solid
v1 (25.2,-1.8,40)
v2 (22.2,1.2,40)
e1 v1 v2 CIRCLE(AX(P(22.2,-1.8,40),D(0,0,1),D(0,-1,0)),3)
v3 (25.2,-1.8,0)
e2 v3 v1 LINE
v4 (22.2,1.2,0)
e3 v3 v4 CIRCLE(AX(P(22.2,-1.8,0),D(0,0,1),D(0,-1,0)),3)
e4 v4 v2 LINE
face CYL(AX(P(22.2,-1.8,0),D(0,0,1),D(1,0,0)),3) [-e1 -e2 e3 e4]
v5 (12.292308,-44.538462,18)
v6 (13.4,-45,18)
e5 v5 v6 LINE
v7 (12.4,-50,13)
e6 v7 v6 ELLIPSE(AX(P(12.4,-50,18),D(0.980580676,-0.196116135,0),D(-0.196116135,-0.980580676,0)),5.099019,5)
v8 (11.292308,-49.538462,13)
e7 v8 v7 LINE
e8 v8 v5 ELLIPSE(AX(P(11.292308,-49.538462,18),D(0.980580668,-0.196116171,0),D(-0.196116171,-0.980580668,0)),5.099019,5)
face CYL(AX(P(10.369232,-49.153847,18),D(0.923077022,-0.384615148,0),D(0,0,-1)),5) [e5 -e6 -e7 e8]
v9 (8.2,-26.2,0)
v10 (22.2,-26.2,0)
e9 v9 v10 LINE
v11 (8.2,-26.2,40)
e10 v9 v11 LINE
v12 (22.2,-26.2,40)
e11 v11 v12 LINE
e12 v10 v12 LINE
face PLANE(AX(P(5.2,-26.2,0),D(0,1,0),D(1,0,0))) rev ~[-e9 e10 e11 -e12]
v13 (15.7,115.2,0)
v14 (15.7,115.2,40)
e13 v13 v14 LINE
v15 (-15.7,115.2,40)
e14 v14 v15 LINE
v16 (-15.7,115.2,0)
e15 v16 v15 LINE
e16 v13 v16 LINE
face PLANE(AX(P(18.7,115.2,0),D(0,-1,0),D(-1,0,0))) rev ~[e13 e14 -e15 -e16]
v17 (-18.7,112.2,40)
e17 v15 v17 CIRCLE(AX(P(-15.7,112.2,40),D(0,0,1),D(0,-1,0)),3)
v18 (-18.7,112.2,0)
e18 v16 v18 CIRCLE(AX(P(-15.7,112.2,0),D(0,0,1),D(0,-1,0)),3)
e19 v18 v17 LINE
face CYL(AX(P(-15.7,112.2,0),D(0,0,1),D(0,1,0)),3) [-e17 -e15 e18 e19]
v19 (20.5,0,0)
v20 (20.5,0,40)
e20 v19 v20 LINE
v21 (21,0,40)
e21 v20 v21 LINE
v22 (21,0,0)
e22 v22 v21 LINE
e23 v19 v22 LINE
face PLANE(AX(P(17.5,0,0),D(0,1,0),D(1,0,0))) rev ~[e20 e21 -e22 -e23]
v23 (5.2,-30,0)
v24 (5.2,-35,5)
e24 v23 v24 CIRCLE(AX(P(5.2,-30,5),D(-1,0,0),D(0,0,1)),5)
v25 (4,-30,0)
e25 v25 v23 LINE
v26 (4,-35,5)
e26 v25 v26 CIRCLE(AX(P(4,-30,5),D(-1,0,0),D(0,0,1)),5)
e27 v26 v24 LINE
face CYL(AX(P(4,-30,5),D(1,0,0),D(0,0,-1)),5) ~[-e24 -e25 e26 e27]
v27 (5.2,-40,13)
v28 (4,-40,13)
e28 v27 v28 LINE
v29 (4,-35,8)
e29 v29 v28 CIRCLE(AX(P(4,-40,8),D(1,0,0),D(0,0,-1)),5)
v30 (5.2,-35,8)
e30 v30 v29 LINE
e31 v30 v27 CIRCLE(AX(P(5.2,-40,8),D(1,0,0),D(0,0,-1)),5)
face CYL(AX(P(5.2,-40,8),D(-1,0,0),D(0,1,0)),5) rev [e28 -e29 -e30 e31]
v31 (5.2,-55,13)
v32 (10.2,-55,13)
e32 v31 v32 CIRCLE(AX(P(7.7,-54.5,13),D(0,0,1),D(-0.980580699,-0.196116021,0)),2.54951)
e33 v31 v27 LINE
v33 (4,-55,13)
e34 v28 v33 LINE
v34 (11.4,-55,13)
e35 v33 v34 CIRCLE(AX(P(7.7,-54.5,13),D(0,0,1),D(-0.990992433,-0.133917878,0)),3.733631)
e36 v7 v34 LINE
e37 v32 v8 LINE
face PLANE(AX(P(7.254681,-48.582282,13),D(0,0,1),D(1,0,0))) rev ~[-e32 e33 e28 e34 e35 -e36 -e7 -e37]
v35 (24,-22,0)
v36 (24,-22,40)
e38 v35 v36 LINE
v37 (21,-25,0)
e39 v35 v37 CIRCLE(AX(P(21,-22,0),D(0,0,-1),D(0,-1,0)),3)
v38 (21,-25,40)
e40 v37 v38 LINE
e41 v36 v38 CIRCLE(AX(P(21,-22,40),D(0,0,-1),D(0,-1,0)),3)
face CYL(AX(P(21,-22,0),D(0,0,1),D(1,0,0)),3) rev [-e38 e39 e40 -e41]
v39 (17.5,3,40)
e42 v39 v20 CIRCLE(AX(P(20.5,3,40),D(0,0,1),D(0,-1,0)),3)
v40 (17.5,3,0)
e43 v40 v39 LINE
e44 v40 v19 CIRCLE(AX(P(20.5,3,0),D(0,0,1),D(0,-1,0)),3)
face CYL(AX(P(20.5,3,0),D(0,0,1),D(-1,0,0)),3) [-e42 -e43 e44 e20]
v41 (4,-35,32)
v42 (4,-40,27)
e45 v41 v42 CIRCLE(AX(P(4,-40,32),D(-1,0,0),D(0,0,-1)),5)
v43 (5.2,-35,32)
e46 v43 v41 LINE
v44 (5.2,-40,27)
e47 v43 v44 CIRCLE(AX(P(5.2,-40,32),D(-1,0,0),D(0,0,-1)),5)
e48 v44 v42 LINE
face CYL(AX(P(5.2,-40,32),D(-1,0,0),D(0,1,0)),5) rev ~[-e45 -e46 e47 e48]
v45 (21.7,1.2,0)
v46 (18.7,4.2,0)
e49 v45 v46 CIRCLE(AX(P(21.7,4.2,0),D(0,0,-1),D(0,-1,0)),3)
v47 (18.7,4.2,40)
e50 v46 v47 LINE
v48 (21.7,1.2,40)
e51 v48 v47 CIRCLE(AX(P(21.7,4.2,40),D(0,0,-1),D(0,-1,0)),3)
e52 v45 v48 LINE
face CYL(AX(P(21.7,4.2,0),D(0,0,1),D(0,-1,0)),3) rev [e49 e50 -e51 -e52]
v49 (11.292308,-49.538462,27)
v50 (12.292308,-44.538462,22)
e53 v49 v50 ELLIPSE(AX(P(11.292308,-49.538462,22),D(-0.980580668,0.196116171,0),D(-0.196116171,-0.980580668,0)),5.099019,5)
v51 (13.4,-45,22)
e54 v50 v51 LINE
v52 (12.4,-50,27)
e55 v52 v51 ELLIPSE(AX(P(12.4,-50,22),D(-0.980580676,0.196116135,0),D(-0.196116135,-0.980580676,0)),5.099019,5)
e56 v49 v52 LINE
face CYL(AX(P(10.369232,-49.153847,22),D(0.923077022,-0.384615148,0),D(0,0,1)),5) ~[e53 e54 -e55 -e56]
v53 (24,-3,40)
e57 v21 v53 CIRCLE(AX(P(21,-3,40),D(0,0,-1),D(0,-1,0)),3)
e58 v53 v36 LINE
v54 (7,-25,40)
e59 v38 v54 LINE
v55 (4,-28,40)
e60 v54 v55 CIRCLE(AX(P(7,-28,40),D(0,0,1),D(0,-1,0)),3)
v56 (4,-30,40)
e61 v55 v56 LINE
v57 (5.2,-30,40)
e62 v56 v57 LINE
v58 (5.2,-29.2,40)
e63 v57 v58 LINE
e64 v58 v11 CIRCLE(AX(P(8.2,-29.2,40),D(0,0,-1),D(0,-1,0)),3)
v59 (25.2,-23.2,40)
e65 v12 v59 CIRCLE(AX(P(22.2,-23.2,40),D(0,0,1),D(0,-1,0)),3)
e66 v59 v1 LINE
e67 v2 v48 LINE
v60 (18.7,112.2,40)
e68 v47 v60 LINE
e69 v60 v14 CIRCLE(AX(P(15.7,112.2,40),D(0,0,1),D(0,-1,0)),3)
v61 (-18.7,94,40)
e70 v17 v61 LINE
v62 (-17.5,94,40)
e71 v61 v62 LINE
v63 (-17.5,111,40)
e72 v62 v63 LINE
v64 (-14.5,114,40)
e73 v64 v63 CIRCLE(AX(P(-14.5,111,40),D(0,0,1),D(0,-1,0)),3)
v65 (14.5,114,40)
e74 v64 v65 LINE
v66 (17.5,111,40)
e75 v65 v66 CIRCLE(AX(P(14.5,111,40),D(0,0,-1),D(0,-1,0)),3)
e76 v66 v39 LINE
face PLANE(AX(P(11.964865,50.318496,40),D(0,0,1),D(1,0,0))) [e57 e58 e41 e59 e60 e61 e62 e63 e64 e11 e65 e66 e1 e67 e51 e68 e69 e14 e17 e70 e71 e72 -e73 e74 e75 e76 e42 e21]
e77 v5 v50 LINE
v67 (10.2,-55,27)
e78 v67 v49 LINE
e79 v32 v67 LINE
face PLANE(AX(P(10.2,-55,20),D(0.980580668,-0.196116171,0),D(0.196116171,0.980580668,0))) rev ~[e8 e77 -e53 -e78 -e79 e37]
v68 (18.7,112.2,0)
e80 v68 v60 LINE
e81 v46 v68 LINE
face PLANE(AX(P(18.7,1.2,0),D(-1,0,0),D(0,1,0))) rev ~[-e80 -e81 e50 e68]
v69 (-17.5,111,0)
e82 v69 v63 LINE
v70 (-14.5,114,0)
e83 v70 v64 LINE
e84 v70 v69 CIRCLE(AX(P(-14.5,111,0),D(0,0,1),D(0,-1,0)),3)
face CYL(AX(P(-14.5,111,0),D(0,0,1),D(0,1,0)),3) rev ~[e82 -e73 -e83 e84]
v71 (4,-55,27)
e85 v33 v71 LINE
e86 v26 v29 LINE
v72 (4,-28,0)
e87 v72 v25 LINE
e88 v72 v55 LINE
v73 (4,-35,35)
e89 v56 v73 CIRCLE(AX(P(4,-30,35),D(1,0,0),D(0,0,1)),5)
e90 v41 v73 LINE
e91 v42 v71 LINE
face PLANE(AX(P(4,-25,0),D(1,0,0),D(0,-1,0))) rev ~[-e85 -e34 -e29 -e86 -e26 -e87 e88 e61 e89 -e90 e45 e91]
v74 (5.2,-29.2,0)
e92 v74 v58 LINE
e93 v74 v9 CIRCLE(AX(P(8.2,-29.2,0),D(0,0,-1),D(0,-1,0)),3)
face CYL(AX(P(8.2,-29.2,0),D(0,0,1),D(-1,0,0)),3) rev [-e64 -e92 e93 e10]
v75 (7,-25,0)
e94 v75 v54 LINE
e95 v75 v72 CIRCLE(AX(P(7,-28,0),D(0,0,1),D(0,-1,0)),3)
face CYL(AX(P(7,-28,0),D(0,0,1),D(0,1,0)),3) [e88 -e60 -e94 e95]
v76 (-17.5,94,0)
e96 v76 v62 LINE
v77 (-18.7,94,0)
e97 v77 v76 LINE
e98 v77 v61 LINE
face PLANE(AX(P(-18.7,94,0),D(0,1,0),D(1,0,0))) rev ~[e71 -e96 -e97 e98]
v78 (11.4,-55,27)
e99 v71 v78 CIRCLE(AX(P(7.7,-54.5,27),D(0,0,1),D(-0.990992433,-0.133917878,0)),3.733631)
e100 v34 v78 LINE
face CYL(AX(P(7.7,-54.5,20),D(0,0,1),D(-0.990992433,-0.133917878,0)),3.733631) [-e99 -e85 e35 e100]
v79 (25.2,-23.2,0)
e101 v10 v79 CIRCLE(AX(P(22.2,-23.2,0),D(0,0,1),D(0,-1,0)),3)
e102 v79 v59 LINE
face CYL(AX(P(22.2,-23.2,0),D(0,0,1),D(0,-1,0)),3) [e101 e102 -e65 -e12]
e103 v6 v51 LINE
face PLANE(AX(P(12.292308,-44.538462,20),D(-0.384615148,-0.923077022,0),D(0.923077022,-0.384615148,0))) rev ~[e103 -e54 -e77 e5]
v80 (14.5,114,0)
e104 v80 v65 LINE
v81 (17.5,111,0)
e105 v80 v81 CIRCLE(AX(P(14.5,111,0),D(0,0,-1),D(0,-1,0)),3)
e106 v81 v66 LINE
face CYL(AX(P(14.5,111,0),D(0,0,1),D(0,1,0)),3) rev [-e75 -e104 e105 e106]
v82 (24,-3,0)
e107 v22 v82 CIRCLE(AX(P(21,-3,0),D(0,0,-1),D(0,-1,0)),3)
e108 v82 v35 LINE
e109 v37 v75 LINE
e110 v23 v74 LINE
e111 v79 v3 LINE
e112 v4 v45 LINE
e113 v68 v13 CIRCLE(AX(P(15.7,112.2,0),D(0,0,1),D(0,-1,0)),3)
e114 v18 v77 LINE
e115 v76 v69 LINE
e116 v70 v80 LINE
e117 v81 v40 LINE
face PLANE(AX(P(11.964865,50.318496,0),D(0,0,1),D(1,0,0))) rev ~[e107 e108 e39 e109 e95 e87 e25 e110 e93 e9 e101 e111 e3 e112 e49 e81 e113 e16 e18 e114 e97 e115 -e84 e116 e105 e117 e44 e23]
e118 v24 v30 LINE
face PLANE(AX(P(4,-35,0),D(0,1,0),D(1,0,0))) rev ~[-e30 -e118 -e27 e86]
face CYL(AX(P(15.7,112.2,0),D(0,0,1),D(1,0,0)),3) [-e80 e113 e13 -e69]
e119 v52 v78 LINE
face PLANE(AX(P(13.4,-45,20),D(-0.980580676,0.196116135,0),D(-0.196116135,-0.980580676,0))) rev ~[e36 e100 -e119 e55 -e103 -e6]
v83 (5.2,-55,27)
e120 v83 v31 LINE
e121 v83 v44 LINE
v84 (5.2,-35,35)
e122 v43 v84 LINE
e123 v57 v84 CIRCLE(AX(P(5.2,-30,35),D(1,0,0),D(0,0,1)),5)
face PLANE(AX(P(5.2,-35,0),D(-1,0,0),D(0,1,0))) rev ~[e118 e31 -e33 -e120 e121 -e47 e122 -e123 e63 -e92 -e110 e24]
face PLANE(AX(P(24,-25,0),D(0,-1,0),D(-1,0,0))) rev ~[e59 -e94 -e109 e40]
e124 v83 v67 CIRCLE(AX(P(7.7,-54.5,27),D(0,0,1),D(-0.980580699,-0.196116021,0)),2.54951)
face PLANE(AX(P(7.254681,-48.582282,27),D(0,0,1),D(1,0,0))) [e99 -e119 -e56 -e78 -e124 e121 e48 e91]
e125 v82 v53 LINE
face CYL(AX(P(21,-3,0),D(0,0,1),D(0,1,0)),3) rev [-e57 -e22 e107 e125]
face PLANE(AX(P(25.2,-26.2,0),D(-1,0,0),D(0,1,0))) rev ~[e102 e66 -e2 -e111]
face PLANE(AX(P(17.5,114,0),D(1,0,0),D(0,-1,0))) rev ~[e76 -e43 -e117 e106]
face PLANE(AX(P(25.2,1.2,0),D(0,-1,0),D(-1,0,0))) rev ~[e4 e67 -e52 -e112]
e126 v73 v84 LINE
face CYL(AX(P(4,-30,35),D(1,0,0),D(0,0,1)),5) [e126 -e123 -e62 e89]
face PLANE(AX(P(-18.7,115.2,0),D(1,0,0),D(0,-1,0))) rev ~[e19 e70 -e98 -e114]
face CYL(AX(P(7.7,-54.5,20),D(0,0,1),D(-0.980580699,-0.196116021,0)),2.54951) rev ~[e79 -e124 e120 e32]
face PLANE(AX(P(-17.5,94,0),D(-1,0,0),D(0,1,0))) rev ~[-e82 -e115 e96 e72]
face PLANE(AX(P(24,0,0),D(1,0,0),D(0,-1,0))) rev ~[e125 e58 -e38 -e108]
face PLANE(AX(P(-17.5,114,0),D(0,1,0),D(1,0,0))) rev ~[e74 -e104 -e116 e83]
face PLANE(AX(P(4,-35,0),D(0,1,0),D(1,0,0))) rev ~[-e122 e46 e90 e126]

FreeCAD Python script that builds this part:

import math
import FreeCAD as App
import Part
import Sketcher

V = App.Vector


def edges_at(feature, points):
    """Names of the edges that pass closest to the given points."""
    edges = feature.Shape.Edges
    near = lambda p: min(range(len(edges)), key=lambda i: edges[i].distToShape(Part.Vertex(*p))[0])
    return sorted({f"Edge{near(p) + 1}" for p in points})

doc = App.newDocument("Part")
params = doc.addObject("Spreadsheet::Sheet", "Params")
for row, (alias, value) in enumerate([
    ("sketch1_width", "35 mm"),
    ("sketch1_width2", "20 mm"),
    ("sketch1_height", "114 mm"),
    ("sketch1_height2", "25 mm"),
    ("sketch1_height3", "10 mm"),
    ("pad1_length", "40 mm"),
    ("sketch2_height", "20 mm"),
    ("sketch2_width", "1.2 mm"),
    ("sketch2_length", "1.2 mm"),
    ("pad2_length", "14 mm"),
    ("fillet_radius", "3 mm"),
    ("fillet2_radius", "5 mm"),
], start=1):
    params.set(f"A{row}", alias)
    params.set(f"B{row}", "=" + value)
    params.setAlias(f"B{row}", alias)

body = doc.addObject("PartDesign::Body", "Body")

sketch1 = doc.addObject("Sketcher::SketchObject", "Sketch")
body.addObject(sketch1)
sketch1.AttachmentSupport = (doc.XY_Plane, [""])
sketch1.MapMode = "FlatFace"
sketch1.addGeometry(Part.LineSegment(V(-17.5, 114, 0), V(17.5, 114, 0)), False)
sketch1.addGeometry(Part.LineSegment(V(17.5, 114, 0), V(17.5, 0, 0)), False)
sketch1.addGeometry(Part.LineSegment(V(17.5, 0, 0), V(24, 0, 0)), False)
sketch1.addGeometry(Part.LineSegment(V(24, 0, 0), V(24, -25, 0)), False)
sketch1.addGeometry(Part.LineSegment(V(24, -25, 0), V(4, -25, 0)), False)
sketch1.addGeometry(Part.LineSegment(V(4, -25, 0), V(4, -35, 0)), False)
sketch1.addGeometry(Part.LineSegment(V(4, -35, 0), V(5.2, -35, 0)), False)
sketch1.addGeometry(Part.LineSegment(V(5.2, -35, 0), V(5.2, -26.2, 0)), False)
sketch1.addGeometry(Part.LineSegment(V(5.2, -26.2, 0), V(25.2, -26.2, 0)), False)
sketch1.addGeometry(Part.LineSegment(V(25.2, -26.2, 0), V(25.2, 1.2, 0)), False)
sketch1.addGeometry(Part.LineSegment(V(25.2, 1.2, 0), V(18.7, 1.2, 0)), False)
sketch1.addGeometry(Part.LineSegment(V(18.7, 1.2, 0), V(18.7, 115.2, 0)), False)
sketch1.addGeometry(Part.LineSegment(V(18.7, 115.2, 0), V(-18.7, 115.2, 0)), False)
sketch1.addGeometry(Part.LineSegment(V(-18.7, 115.2, 0), V(-18.7, 94, 0)), False)
sketch1.addGeometry(Part.LineSegment(V(-18.7, 94, 0), V(-17.5, 94, 0)), False)
sketch1.addGeometry(Part.LineSegment(V(-17.5, 94, 0), V(-17.5, 114, 0)), False)
sketch1.addConstraint(Sketcher.Constraint("Coincident", 0, 2, 1, 1))
sketch1.addConstraint(Sketcher.Constraint("Coincident", 1, 2, 2, 1))
sketch1.addConstraint(Sketcher.Constraint("Coincident", 2, 2, 3, 1))
sketch1.addConstraint(Sketcher.Constraint("Coincident", 3, 2, 4, 1))
sketch1.addConstraint(Sketcher.Constraint("Coincident", 4, 2, 5, 1))
sketch1.addConstraint(Sketcher.Constraint("Coincident", 5, 2, 6, 1))
sketch1.addConstraint(Sketcher.Constraint("Coincident", 6, 2, 7, 1))
sketch1.addConstraint(Sketcher.Constraint("Coincident", 7, 2, 8, 1))
sketch1.addConstraint(Sketcher.Constraint("Coincident", 8, 2, 9, 1))
sketch1.addConstraint(Sketcher.Constraint("Coincident", 9, 2, 10, 1))
sketch1.addConstraint(Sketcher.Constraint("Coincident", 10, 2, 11, 1))
sketch1.addConstraint(Sketcher.Constraint("Coincident", 11, 2, 12, 1))
sketch1.addConstraint(Sketcher.Constraint("Coincident", 12, 2, 13, 1))
sketch1.addConstraint(Sketcher.Constraint("Coincident", 13, 2, 14, 1))
sketch1.addConstraint(Sketcher.Constraint("Coincident", 14, 2, 15, 1))
sketch1.addConstraint(Sketcher.Constraint("Coincident", 15, 2, 0, 1))
sketch1.addConstraint(Sketcher.Constraint("Horizontal", 0))
sketch1.addConstraint(Sketcher.Constraint("Vertical", 1))
sketch1.addConstraint(Sketcher.Constraint("Horizontal", 2))
sketch1.addConstraint(Sketcher.Constraint("Vertical", 3))
sketch1.addConstraint(Sketcher.Constraint("Horizontal", 4))
sketch1.addConstraint(Sketcher.Constraint("Vertical", 5))
sketch1.addConstraint(Sketcher.Constraint("Horizontal", 6))
sketch1.addConstraint(Sketcher.Constraint("Vertical", 7))
sketch1.addConstraint(Sketcher.Constraint("Horizontal", 8))
sketch1.addConstraint(Sketcher.Constraint("Vertical", 9))
sketch1.addConstraint(Sketcher.Constraint("Horizontal", 10))
sketch1.addConstraint(Sketcher.Constraint("Vertical", 11))
sketch1.addConstraint(Sketcher.Constraint("Horizontal", 12))
sketch1.addConstraint(Sketcher.Constraint("Vertical", 13))
sketch1.addConstraint(Sketcher.Constraint("Horizontal", 14))
sketch1.addConstraint(Sketcher.Constraint("Vertical", 15))
sketch1.addConstraint(Sketcher.Constraint("PointOnObject", 1, 2, -1))
sketch1.addConstraint(Sketcher.Constraint("Equal", 4, 8))
sketch1.addConstraint(Sketcher.Constraint("Equal", 2, 10))
sketch1.addConstraint(Sketcher.Constraint("Equal", 6, 14))
sketch1.addConstraint(Sketcher.Constraint("Equal", 1, 11))
sketch1.addConstraint(Sketcher.Constraint("Equal", 8, 15))
sketch1.addConstraint(Sketcher.Constraint("DistanceX", 0, 1, 0, 2, 35.0))
sketch1.addConstraint(Sketcher.Constraint("DistanceX", 4, 2, 4, 1, 20.0))
sketch1.addConstraint(Sketcher.Constraint("DistanceY", 1, 2, 1, 1, 114.0))
sketch1.addConstraint(Sketcher.Constraint("DistanceY", 3, 2, 3, 1, 25.0))
sketch1.addConstraint(Sketcher.Constraint("DistanceY", 5, 2, 5, 1, 10.0))
sketch1.addConstraint(Sketcher.Constraint("DistanceX", 2, 1, 2, 2, 6.5))
sketch1.addConstraint(Sketcher.Constraint("DistanceX", 6, 1, 6, 2, 1.2))
sketch1.addConstraint(Sketcher.Constraint("DistanceY", 7, 1, 7, 2, 8.8))
sketch1.addConstraint(Sketcher.Constraint("DistanceY", 9, 1, 9, 2, 27.4))
sketch1.addConstraint(Sketcher.Constraint("DistanceX", -1, 1, 2, 2, 24.0))
sketch1.setExpression("Constraints[38]", "Params.sketch1_width")
sketch1.setExpression("Constraints[39]", "Params.sketch1_width2")
sketch1.setExpression("Constraints[40]", "Params.sketch1_height")
sketch1.setExpression("Constraints[41]", "Params.sketch1_height2")
sketch1.setExpression("Constraints[42]", "Params.sketch1_height3")
pad1 = doc.addObject("PartDesign::Pad", "Pad")
body.addObject(pad1)
pad1.Profile = sketch1
pad1.setExpression("Length", "Params.pad1_length")

sketch2 = doc.addObject("Sketcher::SketchObject", "Sketch001")
body.addObject(sketch2)
sketch2.AttachmentSupport = (doc.XY_Plane, [""])
sketch2.MapMode = "FlatFace"
sketch2.AttachmentOffset = App.Placement(V(0, 0, 20), App.Rotation())
sketch2.addGeometry(Part.LineSegment(V(4, -35, 0), V(4, -55, 0)), False)
sketch2.addGeometry(Part.ArcOfCircle(Part.Circle(V(7.7, -54.5, 0), V(0, 0, 1), 3.7), math.radians(-172), math.radians(-8)), False)
sketch2.addGeometry(Part.LineSegment(V(11.4, -55, 0), V(13.4, -45, 0)), False)
sketch2.addGeometry(Part.LineSegment(V(13.4, -45, 0), V(12.3, -44.5, 0)), False)
sketch2.addGeometry(Part.LineSegment(V(12.3, -44.5, 0), V(10.2, -55, 0)), False)
sketch2.addGeometry(Part.ArcOfCircle(Part.Circle(V(7.7, -54.5, 0), V(0, 0, 1), 2.5), math.radians(-169), math.radians(-11)), False)
sketch2.addGeometry(Part.LineSegment(V(5.2, -55, 0), V(5.2, -35, 0)), False)
sketch2.addGeometry(Part.LineSegment(V(5.2, -35, 0), V(4, -35, 0)), False)
sketch2.addConstraint(Sketcher.Constraint("Coincident", 0, 2, 1, 1))
sketch2.addConstraint(Sketcher.Constraint("Coincident", 1, 2, 2, 1))
sketch2.addConstraint(Sketcher.Constraint("Coincident", 2, 2, 3, 1))
sketch2.addConstraint(Sketcher.Constraint("Coincident", 3, 2, 4, 1))
sketch2.addConstraint(Sketcher.Constraint("Tangent", 4, 2, 5, 2))
sketch2.addConstraint(Sketcher.Constraint("Coincident", 5, 1, 6, 1))
sketch2.addConstraint(Sketcher.Constraint("Coincident", 6, 2, 7, 1))
sketch2.addConstraint(Sketcher.Constraint("Coincident", 7, 2, 0, 1))
sketch2.addConstraint(Sketcher.Constraint("Vertical", 0))
sketch2.addConstraint(Sketcher.Constraint("Vertical", 6))
sketch2.addConstraint(Sketcher.Constraint("Horizontal", 7))
sketch2.addConstraint(Sketcher.Constraint("Coincident", 5, 3, 1, 3))
sketch2.addConstraint(Sketcher.Constraint("Parallel", 2, 4))
sketch2.addConstraint(Sketcher.Constraint("Horizontal", 0, 2, 1, 2))
sketch2.addConstraint(Sketcher.Constraint("Horizontal", 1, 2, 4, 2))
sketch2.addConstraint(Sketcher.Constraint("Horizontal", 4, 2, 5, 1))
sketch2.addConstraint(Sketcher.Constraint("DistanceY", 0, 2, 0, 1, 20.0))
sketch2.addConstraint(Sketcher.Constraint("DistanceX", 7, 2, 7, 1, 1.2))
sketch2.addConstraint(Sketcher.Constraint("DistanceX", -1, 1, 0, 2, 4.0))
sketch2.addConstraint(Sketcher.Constraint("DistanceY", 0, 2, -1, 1, 55.0))
sketch2.addConstraint(Sketcher.Constraint("DistanceY", 2, 2, -1, 1, 45.0))
sketch2.addConstraint(Sketcher.Constraint("DistanceX", 1, 2, 2, 2, 2.0))
sketch2.addConstraint(Sketcher.Constraint("DistanceX", 5, 1, 4, 2, 5.0))
sketch2.addConstraint(Sketcher.Constraint("Distance", 3, 1.2))
sketch2.setExpression("Constraints[16]", "Params.sketch2_height")
sketch2.setExpression("Constraints[17]", "Params.sketch2_width")
sketch2.setExpression("Constraints[23]", "Params.sketch2_length")
pad2 = doc.addObject("PartDesign::Pad", "Pad001")
body.addObject(pad2)
pad2.Profile = sketch2
pad2.setExpression("Length", "Params.pad2_length")
pad2.Midplane = True
doc.recompute()

fillet = doc.addObject("PartDesign::Fillet", "Fillet")
body.addObject(fillet)
fillet.Base = (pad2, edges_at(pad2, [
    (24, -25, 20),
    (4, -25, 20),
    (17.5, 0, 20),
    (17.5, 114, 20),
    (-17.5, 114, 20),
    (24, 0, 20),
    (25.2, -26.2, 20),
    (25.2, 1.2, 20),
    (18.7, 115.2, 20),
    (5.2, -26.2, 20),
    (-18.7, 115.2, 20),
    (18.7, 1.2, 20),
]))
fillet.setExpression("Radius", "Params.fillet_radius")
doc.recompute()

fillet2 = doc.addObject("PartDesign::Fillet", "Fillet001")
body.addObject(fillet2)
fillet2.Base = (fillet, edges_at(fillet, [
    (4.6, -35, 0),
    (4.6, -35, 13),
    (4.6, -35, 27),
    (4.6, -35, 40),
    (12.846, -44.769, 27),
    (12.846, -44.769, 13),
]))
fillet2.setExpression("Radius", "Params.fillet2_radius")

doc.recompute()
